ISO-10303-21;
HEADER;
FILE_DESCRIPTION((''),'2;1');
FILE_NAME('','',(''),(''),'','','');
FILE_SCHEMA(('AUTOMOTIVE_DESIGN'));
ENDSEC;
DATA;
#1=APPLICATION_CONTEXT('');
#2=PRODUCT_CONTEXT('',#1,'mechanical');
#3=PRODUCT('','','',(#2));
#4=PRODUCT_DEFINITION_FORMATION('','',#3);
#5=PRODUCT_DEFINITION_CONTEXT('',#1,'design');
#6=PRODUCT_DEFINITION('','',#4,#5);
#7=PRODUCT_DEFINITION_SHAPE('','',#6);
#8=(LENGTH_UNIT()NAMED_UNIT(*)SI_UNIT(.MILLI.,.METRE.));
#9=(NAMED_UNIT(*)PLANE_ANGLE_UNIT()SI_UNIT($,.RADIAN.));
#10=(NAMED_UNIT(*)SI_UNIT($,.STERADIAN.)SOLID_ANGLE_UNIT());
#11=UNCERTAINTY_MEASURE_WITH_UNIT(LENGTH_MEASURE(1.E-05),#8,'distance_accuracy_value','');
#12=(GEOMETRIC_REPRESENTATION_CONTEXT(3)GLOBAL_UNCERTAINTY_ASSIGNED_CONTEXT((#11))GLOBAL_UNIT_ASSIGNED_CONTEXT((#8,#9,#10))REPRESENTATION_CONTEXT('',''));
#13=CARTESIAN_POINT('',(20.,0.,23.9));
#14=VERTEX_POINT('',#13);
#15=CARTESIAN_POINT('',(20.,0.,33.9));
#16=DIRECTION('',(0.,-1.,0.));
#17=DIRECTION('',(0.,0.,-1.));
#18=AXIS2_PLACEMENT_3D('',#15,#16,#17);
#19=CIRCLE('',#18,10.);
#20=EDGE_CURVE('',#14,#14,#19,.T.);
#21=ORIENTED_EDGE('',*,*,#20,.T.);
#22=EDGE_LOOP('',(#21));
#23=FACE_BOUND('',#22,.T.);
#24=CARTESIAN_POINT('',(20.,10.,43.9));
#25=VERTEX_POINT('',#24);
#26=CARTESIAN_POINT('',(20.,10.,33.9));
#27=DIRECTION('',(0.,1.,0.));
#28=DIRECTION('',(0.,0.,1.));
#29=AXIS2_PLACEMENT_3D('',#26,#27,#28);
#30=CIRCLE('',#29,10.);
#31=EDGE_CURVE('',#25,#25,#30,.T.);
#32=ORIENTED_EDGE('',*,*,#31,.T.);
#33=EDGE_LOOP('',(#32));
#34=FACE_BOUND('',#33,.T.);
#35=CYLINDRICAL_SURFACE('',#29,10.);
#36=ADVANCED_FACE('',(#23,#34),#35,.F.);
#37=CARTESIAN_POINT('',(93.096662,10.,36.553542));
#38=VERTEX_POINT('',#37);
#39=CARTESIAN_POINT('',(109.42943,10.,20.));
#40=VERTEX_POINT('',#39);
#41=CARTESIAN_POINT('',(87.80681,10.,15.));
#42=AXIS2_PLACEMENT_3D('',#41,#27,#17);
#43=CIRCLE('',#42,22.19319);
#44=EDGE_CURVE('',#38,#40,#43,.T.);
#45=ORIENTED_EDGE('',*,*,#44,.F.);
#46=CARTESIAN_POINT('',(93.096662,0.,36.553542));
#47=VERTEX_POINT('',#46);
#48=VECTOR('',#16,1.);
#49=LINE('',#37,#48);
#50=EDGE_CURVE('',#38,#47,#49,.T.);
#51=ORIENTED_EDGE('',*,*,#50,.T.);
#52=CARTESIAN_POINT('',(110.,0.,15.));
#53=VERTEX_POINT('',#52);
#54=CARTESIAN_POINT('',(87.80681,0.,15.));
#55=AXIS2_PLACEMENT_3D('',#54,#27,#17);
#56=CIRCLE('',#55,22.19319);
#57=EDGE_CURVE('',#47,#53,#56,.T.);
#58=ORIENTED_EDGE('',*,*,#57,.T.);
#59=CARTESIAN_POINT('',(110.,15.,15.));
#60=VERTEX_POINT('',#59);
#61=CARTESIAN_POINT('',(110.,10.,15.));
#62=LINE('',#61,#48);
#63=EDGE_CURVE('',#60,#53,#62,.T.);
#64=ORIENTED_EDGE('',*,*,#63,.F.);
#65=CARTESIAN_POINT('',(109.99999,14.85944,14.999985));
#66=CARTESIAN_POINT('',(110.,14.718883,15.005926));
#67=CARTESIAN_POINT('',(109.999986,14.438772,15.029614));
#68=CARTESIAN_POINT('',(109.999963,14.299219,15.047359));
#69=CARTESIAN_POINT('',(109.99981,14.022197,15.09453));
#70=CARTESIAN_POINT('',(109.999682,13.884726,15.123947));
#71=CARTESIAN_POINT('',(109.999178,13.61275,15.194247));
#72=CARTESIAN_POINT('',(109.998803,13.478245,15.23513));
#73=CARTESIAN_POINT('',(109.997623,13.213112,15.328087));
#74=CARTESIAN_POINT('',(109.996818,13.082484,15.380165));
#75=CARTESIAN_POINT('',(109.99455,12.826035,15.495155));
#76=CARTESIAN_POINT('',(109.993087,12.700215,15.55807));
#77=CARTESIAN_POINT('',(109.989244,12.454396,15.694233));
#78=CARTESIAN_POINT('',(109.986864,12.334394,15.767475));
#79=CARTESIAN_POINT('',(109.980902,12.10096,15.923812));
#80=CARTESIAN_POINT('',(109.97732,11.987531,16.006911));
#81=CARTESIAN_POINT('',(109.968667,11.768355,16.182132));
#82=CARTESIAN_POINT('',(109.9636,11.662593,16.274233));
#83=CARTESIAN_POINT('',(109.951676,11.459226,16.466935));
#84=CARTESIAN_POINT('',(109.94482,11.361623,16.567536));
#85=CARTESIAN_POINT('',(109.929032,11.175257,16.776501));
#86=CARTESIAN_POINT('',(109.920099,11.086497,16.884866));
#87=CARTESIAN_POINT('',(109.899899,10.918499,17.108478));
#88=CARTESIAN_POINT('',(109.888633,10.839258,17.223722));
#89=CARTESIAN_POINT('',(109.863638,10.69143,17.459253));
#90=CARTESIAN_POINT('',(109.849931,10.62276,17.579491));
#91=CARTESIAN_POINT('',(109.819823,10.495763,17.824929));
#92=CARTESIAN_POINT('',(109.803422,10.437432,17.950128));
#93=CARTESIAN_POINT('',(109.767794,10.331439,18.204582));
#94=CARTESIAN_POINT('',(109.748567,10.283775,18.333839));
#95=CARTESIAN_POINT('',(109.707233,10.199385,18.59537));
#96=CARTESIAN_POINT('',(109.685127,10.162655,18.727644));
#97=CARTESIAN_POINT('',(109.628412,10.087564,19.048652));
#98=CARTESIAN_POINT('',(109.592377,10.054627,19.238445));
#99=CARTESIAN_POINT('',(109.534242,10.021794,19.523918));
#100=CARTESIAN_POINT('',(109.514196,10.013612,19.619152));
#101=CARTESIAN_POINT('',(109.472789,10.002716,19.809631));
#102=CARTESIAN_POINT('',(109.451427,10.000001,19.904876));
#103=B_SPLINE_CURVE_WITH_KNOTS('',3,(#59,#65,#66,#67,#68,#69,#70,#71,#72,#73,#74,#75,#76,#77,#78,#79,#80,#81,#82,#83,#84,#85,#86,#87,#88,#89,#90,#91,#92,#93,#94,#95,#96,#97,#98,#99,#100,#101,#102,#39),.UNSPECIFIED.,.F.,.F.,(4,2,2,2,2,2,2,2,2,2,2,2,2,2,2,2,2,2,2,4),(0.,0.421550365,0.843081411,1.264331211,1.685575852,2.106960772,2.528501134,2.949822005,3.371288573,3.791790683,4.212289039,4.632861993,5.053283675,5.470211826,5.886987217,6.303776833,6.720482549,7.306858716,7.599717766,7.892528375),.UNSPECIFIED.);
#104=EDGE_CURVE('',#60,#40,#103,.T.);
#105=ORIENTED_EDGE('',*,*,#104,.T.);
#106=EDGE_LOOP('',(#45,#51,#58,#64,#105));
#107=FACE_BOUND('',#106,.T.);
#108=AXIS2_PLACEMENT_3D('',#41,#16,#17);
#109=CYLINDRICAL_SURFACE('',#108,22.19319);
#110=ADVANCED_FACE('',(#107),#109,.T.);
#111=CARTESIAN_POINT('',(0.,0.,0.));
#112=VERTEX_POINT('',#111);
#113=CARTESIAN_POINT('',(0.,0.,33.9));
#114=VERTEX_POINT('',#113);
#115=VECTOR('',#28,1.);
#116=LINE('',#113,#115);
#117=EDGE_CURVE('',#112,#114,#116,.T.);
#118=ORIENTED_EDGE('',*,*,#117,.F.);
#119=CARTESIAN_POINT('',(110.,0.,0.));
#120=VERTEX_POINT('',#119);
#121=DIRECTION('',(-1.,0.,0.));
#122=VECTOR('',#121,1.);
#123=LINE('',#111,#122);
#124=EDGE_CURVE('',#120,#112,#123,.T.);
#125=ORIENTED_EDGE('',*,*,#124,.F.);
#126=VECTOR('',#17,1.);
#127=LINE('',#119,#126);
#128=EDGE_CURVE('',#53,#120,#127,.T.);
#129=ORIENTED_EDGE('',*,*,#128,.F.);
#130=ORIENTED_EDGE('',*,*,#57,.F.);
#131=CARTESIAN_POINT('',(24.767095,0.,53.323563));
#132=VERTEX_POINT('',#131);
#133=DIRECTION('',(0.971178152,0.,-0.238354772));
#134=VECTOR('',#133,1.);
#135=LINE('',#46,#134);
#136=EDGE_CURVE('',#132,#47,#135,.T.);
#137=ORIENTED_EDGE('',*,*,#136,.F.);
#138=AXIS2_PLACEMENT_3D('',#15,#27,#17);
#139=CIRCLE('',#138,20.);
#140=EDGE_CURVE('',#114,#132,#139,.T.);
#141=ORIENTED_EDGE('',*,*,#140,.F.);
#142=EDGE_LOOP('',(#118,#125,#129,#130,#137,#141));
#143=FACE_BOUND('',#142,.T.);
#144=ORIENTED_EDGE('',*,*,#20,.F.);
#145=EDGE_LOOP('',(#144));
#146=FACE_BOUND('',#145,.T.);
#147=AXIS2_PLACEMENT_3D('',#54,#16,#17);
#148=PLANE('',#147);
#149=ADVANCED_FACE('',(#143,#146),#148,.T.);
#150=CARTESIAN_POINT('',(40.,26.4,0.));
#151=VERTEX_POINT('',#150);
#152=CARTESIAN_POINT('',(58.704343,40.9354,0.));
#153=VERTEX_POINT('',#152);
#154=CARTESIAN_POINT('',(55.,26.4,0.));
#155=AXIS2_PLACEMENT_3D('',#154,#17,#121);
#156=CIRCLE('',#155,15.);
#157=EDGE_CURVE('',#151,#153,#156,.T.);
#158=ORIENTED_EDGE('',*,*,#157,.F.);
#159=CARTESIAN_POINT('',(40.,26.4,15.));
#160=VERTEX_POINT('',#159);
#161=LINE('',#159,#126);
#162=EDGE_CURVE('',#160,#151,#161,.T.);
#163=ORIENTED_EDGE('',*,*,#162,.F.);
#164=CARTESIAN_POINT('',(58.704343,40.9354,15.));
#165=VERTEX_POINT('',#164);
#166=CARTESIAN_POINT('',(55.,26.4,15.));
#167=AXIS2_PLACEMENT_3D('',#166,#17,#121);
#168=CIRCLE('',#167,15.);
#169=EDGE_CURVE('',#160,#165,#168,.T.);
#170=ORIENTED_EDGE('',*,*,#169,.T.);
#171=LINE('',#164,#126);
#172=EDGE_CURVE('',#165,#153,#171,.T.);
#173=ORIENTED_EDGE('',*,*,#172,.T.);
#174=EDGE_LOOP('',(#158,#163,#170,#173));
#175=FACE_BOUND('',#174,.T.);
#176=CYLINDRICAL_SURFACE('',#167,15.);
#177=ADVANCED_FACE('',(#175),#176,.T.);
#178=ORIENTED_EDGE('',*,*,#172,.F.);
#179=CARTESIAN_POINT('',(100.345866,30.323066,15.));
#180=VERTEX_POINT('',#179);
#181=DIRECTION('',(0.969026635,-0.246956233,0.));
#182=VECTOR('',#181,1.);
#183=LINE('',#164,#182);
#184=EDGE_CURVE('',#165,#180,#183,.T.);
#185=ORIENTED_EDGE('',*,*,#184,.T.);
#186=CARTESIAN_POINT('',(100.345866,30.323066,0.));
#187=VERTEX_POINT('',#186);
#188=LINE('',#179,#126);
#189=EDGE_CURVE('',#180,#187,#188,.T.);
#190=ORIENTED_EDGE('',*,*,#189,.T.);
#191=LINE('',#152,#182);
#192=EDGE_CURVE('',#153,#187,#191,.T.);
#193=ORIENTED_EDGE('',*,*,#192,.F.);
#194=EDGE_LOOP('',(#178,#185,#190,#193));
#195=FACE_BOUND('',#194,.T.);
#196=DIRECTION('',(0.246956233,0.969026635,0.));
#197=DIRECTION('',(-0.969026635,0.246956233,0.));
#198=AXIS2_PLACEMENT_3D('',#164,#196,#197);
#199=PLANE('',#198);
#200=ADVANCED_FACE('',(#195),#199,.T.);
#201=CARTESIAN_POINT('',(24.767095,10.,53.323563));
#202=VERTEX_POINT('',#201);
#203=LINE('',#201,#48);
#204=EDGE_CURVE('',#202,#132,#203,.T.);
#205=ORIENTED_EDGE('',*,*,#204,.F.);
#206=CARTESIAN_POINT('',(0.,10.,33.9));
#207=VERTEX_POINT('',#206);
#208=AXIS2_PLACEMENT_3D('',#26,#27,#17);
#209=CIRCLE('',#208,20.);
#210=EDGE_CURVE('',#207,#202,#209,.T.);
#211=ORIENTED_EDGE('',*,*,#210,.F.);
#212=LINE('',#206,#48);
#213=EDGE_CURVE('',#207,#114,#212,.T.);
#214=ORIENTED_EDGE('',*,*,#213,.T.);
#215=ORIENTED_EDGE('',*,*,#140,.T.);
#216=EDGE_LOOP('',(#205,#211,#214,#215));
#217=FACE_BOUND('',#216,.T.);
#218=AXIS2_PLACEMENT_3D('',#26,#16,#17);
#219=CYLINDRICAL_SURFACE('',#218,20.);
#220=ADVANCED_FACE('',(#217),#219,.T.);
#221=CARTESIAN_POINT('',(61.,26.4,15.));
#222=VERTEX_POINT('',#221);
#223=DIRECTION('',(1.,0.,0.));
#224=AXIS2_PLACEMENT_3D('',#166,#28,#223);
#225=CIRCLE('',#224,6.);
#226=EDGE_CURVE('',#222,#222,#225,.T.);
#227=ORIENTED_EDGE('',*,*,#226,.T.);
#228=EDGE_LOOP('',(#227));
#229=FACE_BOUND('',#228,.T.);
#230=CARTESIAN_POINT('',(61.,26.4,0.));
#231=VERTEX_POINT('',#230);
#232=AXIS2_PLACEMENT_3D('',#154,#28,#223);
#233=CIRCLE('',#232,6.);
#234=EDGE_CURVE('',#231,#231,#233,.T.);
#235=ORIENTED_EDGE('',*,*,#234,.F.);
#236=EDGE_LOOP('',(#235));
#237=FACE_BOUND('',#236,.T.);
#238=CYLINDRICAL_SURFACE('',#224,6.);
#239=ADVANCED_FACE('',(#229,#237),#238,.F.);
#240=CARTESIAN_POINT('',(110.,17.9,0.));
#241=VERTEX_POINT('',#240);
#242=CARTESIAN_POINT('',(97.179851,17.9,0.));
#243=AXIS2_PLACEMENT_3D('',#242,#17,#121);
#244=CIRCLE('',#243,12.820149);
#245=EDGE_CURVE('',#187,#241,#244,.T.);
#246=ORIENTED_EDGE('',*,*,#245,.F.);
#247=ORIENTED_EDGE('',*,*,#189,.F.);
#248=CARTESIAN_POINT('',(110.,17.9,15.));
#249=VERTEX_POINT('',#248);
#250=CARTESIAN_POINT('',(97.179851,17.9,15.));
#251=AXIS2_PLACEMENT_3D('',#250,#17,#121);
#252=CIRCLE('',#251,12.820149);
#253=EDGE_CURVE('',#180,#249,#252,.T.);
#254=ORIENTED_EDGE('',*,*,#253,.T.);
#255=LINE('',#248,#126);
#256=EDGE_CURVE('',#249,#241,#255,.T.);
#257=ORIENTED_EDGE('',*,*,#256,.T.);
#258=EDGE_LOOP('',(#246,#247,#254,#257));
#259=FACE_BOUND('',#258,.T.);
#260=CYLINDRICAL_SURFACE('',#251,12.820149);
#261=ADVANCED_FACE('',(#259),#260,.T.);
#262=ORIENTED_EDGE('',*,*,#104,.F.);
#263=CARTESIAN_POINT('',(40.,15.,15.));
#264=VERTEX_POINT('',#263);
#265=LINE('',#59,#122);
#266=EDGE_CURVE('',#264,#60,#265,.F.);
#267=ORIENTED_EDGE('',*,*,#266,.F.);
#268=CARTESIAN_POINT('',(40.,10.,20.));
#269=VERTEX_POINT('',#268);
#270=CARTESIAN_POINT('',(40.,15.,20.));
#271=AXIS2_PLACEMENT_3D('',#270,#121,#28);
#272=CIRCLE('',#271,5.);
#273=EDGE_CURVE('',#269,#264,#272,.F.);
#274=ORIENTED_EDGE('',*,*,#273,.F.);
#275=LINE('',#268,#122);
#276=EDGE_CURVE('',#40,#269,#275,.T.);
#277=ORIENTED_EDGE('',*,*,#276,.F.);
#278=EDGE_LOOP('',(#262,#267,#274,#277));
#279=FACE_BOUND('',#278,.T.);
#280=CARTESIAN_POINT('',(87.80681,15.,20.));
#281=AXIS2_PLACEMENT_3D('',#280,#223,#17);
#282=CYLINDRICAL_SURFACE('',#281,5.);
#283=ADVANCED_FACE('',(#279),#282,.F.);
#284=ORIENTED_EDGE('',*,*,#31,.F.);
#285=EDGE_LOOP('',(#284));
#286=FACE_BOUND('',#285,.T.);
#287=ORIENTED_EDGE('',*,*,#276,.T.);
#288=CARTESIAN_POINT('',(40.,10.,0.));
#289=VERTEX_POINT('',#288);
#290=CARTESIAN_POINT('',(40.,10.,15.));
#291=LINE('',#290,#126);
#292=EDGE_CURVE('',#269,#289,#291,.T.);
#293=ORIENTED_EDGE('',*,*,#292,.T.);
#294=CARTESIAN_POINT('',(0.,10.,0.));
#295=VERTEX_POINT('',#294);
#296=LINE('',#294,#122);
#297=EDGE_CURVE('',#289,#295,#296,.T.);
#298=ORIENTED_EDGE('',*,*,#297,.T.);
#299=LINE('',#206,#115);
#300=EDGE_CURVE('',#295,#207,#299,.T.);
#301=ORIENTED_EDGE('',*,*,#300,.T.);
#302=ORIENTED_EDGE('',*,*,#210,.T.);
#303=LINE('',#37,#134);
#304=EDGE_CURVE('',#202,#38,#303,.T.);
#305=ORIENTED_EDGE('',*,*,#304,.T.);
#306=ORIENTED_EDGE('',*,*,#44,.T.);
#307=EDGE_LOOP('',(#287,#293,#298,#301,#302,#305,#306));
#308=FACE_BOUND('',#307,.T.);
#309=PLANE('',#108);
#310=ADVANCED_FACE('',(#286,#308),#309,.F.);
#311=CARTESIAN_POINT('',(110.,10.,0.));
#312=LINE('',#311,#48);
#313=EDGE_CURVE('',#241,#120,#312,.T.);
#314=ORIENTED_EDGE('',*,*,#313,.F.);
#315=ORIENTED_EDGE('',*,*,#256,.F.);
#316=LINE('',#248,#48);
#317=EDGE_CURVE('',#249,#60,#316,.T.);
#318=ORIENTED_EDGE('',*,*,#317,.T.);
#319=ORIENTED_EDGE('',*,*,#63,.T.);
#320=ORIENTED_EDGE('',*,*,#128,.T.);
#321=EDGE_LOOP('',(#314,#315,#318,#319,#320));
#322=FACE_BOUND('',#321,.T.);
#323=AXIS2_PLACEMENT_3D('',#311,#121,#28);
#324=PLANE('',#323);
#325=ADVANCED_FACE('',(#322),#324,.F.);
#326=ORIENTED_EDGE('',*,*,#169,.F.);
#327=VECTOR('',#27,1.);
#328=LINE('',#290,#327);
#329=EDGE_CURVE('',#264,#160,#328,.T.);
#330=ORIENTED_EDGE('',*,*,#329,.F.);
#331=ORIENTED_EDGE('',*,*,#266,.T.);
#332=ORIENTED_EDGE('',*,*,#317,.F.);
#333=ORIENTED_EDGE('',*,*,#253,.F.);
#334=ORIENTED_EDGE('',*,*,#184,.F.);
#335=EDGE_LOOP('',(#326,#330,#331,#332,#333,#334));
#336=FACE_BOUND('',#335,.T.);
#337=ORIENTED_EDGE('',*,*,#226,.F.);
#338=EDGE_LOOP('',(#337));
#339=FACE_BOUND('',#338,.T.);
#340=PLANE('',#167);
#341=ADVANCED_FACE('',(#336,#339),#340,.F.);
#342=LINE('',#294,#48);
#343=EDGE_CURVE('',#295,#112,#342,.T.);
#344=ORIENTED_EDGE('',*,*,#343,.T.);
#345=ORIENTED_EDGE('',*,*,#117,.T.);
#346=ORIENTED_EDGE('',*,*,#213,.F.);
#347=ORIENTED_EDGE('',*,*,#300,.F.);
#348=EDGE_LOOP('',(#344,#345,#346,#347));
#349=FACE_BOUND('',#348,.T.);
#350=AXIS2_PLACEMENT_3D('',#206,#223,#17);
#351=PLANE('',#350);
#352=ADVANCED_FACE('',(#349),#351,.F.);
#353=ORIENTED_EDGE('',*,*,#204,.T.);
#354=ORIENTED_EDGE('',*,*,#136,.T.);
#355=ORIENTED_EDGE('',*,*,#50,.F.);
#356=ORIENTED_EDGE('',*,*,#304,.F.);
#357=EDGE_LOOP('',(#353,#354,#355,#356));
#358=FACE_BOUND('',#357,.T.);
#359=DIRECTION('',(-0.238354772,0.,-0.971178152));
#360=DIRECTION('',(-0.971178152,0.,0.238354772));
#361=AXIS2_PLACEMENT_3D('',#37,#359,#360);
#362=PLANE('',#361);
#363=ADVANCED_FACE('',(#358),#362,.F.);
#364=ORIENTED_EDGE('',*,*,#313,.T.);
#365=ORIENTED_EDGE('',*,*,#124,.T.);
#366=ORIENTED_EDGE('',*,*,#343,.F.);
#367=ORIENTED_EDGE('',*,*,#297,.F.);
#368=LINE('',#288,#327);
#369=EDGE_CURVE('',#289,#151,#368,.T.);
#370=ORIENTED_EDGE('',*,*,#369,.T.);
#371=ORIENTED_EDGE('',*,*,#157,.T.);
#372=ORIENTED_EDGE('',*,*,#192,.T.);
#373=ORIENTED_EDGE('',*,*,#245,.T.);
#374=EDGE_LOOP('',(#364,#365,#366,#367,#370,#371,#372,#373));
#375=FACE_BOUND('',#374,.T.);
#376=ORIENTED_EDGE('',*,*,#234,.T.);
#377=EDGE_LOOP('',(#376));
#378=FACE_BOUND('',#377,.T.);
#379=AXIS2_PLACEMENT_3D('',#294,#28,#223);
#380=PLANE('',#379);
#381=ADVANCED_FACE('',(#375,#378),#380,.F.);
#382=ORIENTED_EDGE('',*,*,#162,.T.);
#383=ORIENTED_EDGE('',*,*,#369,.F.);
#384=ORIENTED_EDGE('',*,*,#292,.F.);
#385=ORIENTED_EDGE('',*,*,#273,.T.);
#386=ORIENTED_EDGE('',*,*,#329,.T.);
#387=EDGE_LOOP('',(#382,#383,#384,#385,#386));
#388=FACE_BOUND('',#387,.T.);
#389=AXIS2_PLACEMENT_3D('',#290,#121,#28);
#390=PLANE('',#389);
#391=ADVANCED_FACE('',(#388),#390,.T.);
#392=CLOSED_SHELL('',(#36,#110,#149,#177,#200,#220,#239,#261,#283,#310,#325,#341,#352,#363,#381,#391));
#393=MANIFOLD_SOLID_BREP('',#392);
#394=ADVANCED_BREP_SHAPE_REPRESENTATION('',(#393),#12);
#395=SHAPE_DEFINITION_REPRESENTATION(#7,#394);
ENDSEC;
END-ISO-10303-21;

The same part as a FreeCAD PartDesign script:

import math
import FreeCAD as App
import Part
import Sketcher
from FreeCAD import Vector


def edges_at(feature, points):
    """Names of the edges that pass closest to the given points."""
    edges = feature.Shape.Edges
    near = lambda p: min(range(len(edges)), key=lambda i: edges[i].distToShape(Part.Vertex(*p))[0])
    return sorted({f"Edge{near(p) + 1}" for p in points})

doc = App.newDocument("Part")
params = doc.addObject("Spreadsheet::Sheet", "Params")
for row, (alias, value) in enumerate([
    ("sketch1_radius", "20 mm"),
    ("sketch1_width", "110 mm"),
    ("sketch1_height", "15 mm"),
    ("sketch1_height2", "33.9 mm"),
    ("pad1_length", "10 mm"),
    ("sketch2_radius", "15 mm"),
    ("sketch2_width", "70 mm"),
    ("sketch2_height", "16.4 mm"),
    ("sketch2_height2", "7.9 mm"),
    ("pad2_length", "15 mm"),
    ("sketch3_diameter", "20 mm"),
    ("hole_diameter", "20 mm"),
    ("sketch4_diameter", "12 mm"),
    ("hole2_diameter", "12 mm"),
    ("fillet_radius", "5 mm"),
], start=1):
    params.set(f"A{row}", alias)
    params.set(f"B{row}", "=" + value)
    params.setAlias(f"B{row}", alias)

body = doc.addObject("PartDesign::Body", "Body")

# Sketch on XZ plane
sketch1 = body.newObject("Sketcher::SketchObject", "Sketch")
sketch1.AttachmentSupport = (doc.getObject("XZ_Plane"), [""])
sketch1.MapMode = "FlatFace"
sketch1.addGeometry([
    Part.LineSegment(Vector(110, 0, 0), Vector(0, 0, 0)),  # 0
    Part.LineSegment(Vector(0, 0, 0), Vector(0, 34, 0)),  # 1
    Part.ArcOfCircle(Part.Circle(Vector(20, 34, 0), Vector(0, 0, 1), 20), math.radians(76), math.radians(180)),  # 2
    Part.LineSegment(Vector(25, 53, 0), Vector(93, 37, 0)),  # 3
    Part.ArcOfCircle(Part.Circle(Vector(88, 15, 0), Vector(0, 0, 1), 22), math.radians(0), math.radians(76)),  # 4
    Part.LineSegment(Vector(110, 15, 0), Vector(110, 0, 0)),  # 5
], False)
sketch1.addConstraint([
    Sketcher.Constraint("Coincident", 0, 2, 1, 1),
    Sketcher.Constraint("Tangent", 1, 2, 2, 2),
    Sketcher.Constraint("Tangent", 2, 1, 3, 1),
    Sketcher.Constraint("Tangent", 3, 2, 4, 2),
    Sketcher.Constraint("Tangent", 4, 1, 5, 1),
    Sketcher.Constraint("Coincident", 5, 2, 0, 1),
    Sketcher.Constraint("Horizontal", 0),
    Sketcher.Constraint("Vertical", 1),
    Sketcher.Constraint("Vertical", 5),
    Sketcher.Constraint("Coincident", 0, 2, -1, 1),
    Sketcher.Constraint("Radius", 2, 20.0),
    Sketcher.Constraint("DistanceX", 0, 2, 0, 1, 110.0),
    Sketcher.Constraint("DistanceY", 5, 2, 5, 1, 15.0),
    Sketcher.Constraint("DistanceY", 1, 1, 1, 2, 33.9),
    Sketcher.Constraint("Radius", 4, 22.19319),
])
sketch1.setExpression("Constraints[10]", "Params.sketch1_radius")
sketch1.setExpression("Constraints[11]", "Params.sketch1_width")
sketch1.setExpression("Constraints[12]", "Params.sketch1_height")
sketch1.setExpression("Constraints[13]", "Params.sketch1_height2")
pad1 = body.newObject("PartDesign::Pad", "Pad")
pad1.Profile = sketch1
pad1.setExpression("Length", "Params.pad1_length")
pad1.Reversed = True

# Sketch on XY plane
sketch2 = body.newObject("Sketcher::SketchObject", "Sketch001")
sketch2.AttachmentSupport = (doc.getObject("XY_Plane"), [""])
sketch2.MapMode = "FlatFace"
sketch2.addGeometry([
    Part.LineSegment(Vector(110, 10, 0), Vector(40, 10, 0)),  # 0
    Part.LineSegment(Vector(40, 10, 0), Vector(40, 26, 0)),  # 1
    Part.ArcOfCircle(Part.Circle(Vector(55, 26, 0), Vector(0, 0, 1), 15), math.radians(76), math.radians(180)),  # 2
    Part.LineSegment(Vector(59, 41, 0), Vector(100, 30, 0)),  # 3
    Part.ArcOfCircle(Part.Circle(Vector(97, 18, 0), Vector(0, 0, 1), 13), math.radians(0), math.radians(76)),  # 4
    Part.LineSegment(Vector(110, 18, 0), Vector(110, 10, 0)),  # 5
], False)
sketch2.addConstraint([
    Sketcher.Constraint("Coincident", 0, 2, 1, 1),
    Sketcher.Constraint("Tangent", 1, 2, 2, 2),
    Sketcher.Constraint("Tangent", 2, 1, 3, 1),
    Sketcher.Constraint("Tangent", 3, 2, 4, 2),
    Sketcher.Constraint("Tangent", 4, 1, 5, 1),
    Sketcher.Constraint("Coincident", 5, 2, 0, 1),
    Sketcher.Constraint("Horizontal", 0),
    Sketcher.Constraint("Vertical", 1),
    Sketcher.Constraint("Vertical", 5),
    Sketcher.Constraint("Radius", 2, 15.0),
    Sketcher.Constraint("DistanceX", 0, 2, 0, 1, 70.0),
    Sketcher.Constraint("DistanceY", 1, 1, 1, 2, 16.4),
    Sketcher.Constraint("DistanceY", 5, 2, 5, 1, 7.9),
    Sketcher.Constraint("DistanceX", -1, 1, 2, 3, 55.0),
    Sketcher.Constraint("DistanceY", -1, 1, 0, 2, 10.0),
    Sketcher.Constraint("Radius", 4, 12.820149),
])
sketch2.setExpression("Constraints[9]", "Params.sketch2_radius")
sketch2.setExpression("Constraints[10]", "Params.sketch2_width")
sketch2.setExpression("Constraints[11]", "Params.sketch2_height")
sketch2.setExpression("Constraints[12]", "Params.sketch2_height2")
pad2 = body.newObject("PartDesign::Pad", "Pad001")
pad2.Profile = sketch2
pad2.setExpression("Length", "Params.pad2_length")

# Sketch on XZ plane
sketch3 = body.newObject("Sketcher::SketchObject", "Sketch002")
sketch3.AttachmentSupport = (doc.getObject("XZ_Plane"), [""])
sketch3.MapMode = "FlatFace"
sketch3.AttachmentOffset = App.Placement(Vector(0, 0, -10), App.Rotation())
sketch3.addGeometry(Part.Circle(Vector(20, 34, 0), Vector(0, 0, 1), 10), False)
sketch3.addConstraint([
    Sketcher.Constraint("Diameter", 0, 20.0),
    Sketcher.Constraint("DistanceX", -1, 1, 0, 3, 20.0),
    Sketcher.Constraint("DistanceY", -1, 1, 0, 3, 33.9),
])
sketch3.setExpression("Constraints[0]", "Params.sketch3_diameter")
doc.recompute()
hole = body.newObject("PartDesign::Hole", "Hole")
hole.Profile = sketch3
hole.ThreadType = "None"
hole.setExpression("Diameter", "Params.hole_diameter")
hole.DepthType = "ThroughAll"
hole.Reversed = True

# Sketch on XY plane
sketch4 = body.newObject("Sketcher::SketchObject", "Sketch003")
sketch4.AttachmentSupport = (doc.getObject("XY_Plane"), [""])
sketch4.MapMode = "FlatFace"
sketch4.AttachmentOffset = App.Placement(Vector(0, 0, 15), App.Rotation())
sketch4.addGeometry(Part.Circle(Vector(55, 26, 0), Vector(0, 0, 1), 6), False)
sketch4.addConstraint([
    Sketcher.Constraint("Diameter", 0, 12.0),
    Sketcher.Constraint("DistanceX", -1, 1, 0, 3, 55.0),
    Sketcher.Constraint("DistanceY", -1, 1, 0, 3, 26.4),
])
sketch4.setExpression("Constraints[0]", "Params.sketch4_diameter")
doc.recompute()
hole2 = body.newObject("PartDesign::Hole", "Hole001")
hole2.Profile = sketch4
hole2.ThreadType = "None"
hole2.setExpression("Diameter", "Params.hole2_diameter")
hole2.DepthType = "ThroughAll"
doc.recompute()

fillet = body.newObject("PartDesign::Fillet", "Fillet")
fillet.Base = (hole2, edges_at(hole2, [(75, 10, 15)]))
fillet.setExpression("Radius", "Params.fillet_radius")

doc.recompute()
